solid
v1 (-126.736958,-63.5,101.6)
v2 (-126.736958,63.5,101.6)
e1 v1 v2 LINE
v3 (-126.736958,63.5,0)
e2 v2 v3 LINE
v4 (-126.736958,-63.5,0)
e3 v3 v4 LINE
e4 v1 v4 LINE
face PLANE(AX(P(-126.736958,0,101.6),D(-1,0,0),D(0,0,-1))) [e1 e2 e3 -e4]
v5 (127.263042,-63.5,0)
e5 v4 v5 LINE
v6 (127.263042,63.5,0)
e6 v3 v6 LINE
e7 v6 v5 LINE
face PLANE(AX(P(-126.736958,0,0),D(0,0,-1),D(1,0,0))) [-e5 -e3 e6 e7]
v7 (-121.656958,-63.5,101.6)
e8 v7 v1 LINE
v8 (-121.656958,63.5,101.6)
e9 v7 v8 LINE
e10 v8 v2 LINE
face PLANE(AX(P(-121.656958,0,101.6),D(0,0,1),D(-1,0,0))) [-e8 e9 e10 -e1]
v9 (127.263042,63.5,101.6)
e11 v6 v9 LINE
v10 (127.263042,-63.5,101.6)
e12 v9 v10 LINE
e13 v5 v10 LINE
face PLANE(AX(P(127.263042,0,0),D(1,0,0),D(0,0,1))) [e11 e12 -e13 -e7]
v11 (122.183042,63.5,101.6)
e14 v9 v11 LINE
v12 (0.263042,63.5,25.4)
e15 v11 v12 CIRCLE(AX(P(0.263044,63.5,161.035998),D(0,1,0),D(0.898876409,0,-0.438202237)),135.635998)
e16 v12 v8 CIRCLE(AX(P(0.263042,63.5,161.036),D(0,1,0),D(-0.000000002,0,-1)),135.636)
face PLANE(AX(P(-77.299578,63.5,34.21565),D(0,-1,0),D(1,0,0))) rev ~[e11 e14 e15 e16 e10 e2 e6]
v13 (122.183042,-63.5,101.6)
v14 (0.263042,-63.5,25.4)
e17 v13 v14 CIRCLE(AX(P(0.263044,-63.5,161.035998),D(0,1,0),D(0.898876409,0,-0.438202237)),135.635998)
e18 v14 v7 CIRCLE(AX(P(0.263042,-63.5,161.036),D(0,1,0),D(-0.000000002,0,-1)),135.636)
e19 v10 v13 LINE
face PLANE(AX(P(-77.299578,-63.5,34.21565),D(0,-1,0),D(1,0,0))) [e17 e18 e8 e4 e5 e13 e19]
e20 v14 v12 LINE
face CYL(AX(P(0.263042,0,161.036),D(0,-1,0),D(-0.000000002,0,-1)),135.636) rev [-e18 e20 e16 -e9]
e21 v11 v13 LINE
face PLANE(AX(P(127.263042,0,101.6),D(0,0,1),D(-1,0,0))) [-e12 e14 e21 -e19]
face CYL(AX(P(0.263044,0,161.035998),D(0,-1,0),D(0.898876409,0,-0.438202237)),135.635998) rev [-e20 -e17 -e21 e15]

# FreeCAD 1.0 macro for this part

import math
import FreeCAD as App
import Part
import Sketcher

V = App.Vector
Q = App.Units.Quantity

doc = App.newDocument("Part")
body = doc.addObject("PartDesign::Body", "Body")

sketch1 = doc.addObject("Sketcher::SketchObject", "Sketch")
body.addObject(sketch1)
sketch1.AttachmentSupport = (doc.XZ_Plane, [""])
sketch1.MapMode = "FlatFace"
sketch1.addGeometry([
    Part.LineSegment(V(-127, 102, 0), V(-127, 0, 0)),
    Part.LineSegment(V(-127, 0, 0), V(127, 0, 0)),
    Part.LineSegment(V(127, 0, 0), V(127, 102, 0)),
    Part.LineSegment(V(127, 102, 0), V(122, 102, 0)),
    Part.ArcOfCircle(Part.Circle(V(0, 161, 0), V(0, 0, 1), 136), math.radians(-90), math.radians(-26)),
    Part.ArcOfCircle(Part.Circle(V(0, 161, 0), V(0, 0, 1), 136), math.radians(-154), math.radians(-90)),
    Part.LineSegment(V(-122, 102, 0), V(-127, 102, 0)),
], False)
sketch1.addConstraint([
    Sketcher.Constraint("Coincident", 0, 2, 1, 1),
    Sketcher.Constraint("Coincident", 1, 2, 2, 1),
    Sketcher.Constraint("Coincident", 2, 2, 3, 1),
    Sketcher.Constraint("Coincident", 3, 2, 4, 2),
    Sketcher.Constraint("Tangent", 4, 1, 5, 2),
    Sketcher.Constraint("Coincident", 5, 1, 6, 1),
    Sketcher.Constraint("Coincident", 6, 2, 0, 1),
    Sketcher.Constraint("Vertical", 0),
    Sketcher.Constraint("Horizontal", 1),
    Sketcher.Constraint("Vertical", 2),
    Sketcher.Constraint("Horizontal", 3),
    Sketcher.Constraint("Horizontal", 6),
    Sketcher.Constraint("PointOnObject", 0, 2, -1),
    Sketcher.Constraint("Horizontal", 3, 2, 5, 1),
    Sketcher.Constraint("Vertical", 5, 3, 4, 1),
    Sketcher.Constraint("Equal", 3, 6),
    Sketcher.Constraint("DistanceX", 1, 1, 1, 2, Q("10 in")),
    Sketcher.Constraint("DistanceY", 0, 2, 0, 1, Q("4 in")),
    Sketcher.Constraint("Radius", 4, Q("5.3399999 in")),
    Sketcher.Constraint("Radius", 5, Q("5.34 in")),
    Sketcher.Constraint("DistanceX", 3, 2, 3, 1, Q("0.2 in")),
    Sketcher.Constraint("DistanceX", 0, 2, -1, 1, Q("126.736958 mm")),
])
pad1 = doc.addObject("PartDesign::Pad", "Pad")
body.addObject(pad1)
pad1.Profile = sketch1
pad1.Length = Q("5 in")
pad1.Midplane = True

doc.recompute()
